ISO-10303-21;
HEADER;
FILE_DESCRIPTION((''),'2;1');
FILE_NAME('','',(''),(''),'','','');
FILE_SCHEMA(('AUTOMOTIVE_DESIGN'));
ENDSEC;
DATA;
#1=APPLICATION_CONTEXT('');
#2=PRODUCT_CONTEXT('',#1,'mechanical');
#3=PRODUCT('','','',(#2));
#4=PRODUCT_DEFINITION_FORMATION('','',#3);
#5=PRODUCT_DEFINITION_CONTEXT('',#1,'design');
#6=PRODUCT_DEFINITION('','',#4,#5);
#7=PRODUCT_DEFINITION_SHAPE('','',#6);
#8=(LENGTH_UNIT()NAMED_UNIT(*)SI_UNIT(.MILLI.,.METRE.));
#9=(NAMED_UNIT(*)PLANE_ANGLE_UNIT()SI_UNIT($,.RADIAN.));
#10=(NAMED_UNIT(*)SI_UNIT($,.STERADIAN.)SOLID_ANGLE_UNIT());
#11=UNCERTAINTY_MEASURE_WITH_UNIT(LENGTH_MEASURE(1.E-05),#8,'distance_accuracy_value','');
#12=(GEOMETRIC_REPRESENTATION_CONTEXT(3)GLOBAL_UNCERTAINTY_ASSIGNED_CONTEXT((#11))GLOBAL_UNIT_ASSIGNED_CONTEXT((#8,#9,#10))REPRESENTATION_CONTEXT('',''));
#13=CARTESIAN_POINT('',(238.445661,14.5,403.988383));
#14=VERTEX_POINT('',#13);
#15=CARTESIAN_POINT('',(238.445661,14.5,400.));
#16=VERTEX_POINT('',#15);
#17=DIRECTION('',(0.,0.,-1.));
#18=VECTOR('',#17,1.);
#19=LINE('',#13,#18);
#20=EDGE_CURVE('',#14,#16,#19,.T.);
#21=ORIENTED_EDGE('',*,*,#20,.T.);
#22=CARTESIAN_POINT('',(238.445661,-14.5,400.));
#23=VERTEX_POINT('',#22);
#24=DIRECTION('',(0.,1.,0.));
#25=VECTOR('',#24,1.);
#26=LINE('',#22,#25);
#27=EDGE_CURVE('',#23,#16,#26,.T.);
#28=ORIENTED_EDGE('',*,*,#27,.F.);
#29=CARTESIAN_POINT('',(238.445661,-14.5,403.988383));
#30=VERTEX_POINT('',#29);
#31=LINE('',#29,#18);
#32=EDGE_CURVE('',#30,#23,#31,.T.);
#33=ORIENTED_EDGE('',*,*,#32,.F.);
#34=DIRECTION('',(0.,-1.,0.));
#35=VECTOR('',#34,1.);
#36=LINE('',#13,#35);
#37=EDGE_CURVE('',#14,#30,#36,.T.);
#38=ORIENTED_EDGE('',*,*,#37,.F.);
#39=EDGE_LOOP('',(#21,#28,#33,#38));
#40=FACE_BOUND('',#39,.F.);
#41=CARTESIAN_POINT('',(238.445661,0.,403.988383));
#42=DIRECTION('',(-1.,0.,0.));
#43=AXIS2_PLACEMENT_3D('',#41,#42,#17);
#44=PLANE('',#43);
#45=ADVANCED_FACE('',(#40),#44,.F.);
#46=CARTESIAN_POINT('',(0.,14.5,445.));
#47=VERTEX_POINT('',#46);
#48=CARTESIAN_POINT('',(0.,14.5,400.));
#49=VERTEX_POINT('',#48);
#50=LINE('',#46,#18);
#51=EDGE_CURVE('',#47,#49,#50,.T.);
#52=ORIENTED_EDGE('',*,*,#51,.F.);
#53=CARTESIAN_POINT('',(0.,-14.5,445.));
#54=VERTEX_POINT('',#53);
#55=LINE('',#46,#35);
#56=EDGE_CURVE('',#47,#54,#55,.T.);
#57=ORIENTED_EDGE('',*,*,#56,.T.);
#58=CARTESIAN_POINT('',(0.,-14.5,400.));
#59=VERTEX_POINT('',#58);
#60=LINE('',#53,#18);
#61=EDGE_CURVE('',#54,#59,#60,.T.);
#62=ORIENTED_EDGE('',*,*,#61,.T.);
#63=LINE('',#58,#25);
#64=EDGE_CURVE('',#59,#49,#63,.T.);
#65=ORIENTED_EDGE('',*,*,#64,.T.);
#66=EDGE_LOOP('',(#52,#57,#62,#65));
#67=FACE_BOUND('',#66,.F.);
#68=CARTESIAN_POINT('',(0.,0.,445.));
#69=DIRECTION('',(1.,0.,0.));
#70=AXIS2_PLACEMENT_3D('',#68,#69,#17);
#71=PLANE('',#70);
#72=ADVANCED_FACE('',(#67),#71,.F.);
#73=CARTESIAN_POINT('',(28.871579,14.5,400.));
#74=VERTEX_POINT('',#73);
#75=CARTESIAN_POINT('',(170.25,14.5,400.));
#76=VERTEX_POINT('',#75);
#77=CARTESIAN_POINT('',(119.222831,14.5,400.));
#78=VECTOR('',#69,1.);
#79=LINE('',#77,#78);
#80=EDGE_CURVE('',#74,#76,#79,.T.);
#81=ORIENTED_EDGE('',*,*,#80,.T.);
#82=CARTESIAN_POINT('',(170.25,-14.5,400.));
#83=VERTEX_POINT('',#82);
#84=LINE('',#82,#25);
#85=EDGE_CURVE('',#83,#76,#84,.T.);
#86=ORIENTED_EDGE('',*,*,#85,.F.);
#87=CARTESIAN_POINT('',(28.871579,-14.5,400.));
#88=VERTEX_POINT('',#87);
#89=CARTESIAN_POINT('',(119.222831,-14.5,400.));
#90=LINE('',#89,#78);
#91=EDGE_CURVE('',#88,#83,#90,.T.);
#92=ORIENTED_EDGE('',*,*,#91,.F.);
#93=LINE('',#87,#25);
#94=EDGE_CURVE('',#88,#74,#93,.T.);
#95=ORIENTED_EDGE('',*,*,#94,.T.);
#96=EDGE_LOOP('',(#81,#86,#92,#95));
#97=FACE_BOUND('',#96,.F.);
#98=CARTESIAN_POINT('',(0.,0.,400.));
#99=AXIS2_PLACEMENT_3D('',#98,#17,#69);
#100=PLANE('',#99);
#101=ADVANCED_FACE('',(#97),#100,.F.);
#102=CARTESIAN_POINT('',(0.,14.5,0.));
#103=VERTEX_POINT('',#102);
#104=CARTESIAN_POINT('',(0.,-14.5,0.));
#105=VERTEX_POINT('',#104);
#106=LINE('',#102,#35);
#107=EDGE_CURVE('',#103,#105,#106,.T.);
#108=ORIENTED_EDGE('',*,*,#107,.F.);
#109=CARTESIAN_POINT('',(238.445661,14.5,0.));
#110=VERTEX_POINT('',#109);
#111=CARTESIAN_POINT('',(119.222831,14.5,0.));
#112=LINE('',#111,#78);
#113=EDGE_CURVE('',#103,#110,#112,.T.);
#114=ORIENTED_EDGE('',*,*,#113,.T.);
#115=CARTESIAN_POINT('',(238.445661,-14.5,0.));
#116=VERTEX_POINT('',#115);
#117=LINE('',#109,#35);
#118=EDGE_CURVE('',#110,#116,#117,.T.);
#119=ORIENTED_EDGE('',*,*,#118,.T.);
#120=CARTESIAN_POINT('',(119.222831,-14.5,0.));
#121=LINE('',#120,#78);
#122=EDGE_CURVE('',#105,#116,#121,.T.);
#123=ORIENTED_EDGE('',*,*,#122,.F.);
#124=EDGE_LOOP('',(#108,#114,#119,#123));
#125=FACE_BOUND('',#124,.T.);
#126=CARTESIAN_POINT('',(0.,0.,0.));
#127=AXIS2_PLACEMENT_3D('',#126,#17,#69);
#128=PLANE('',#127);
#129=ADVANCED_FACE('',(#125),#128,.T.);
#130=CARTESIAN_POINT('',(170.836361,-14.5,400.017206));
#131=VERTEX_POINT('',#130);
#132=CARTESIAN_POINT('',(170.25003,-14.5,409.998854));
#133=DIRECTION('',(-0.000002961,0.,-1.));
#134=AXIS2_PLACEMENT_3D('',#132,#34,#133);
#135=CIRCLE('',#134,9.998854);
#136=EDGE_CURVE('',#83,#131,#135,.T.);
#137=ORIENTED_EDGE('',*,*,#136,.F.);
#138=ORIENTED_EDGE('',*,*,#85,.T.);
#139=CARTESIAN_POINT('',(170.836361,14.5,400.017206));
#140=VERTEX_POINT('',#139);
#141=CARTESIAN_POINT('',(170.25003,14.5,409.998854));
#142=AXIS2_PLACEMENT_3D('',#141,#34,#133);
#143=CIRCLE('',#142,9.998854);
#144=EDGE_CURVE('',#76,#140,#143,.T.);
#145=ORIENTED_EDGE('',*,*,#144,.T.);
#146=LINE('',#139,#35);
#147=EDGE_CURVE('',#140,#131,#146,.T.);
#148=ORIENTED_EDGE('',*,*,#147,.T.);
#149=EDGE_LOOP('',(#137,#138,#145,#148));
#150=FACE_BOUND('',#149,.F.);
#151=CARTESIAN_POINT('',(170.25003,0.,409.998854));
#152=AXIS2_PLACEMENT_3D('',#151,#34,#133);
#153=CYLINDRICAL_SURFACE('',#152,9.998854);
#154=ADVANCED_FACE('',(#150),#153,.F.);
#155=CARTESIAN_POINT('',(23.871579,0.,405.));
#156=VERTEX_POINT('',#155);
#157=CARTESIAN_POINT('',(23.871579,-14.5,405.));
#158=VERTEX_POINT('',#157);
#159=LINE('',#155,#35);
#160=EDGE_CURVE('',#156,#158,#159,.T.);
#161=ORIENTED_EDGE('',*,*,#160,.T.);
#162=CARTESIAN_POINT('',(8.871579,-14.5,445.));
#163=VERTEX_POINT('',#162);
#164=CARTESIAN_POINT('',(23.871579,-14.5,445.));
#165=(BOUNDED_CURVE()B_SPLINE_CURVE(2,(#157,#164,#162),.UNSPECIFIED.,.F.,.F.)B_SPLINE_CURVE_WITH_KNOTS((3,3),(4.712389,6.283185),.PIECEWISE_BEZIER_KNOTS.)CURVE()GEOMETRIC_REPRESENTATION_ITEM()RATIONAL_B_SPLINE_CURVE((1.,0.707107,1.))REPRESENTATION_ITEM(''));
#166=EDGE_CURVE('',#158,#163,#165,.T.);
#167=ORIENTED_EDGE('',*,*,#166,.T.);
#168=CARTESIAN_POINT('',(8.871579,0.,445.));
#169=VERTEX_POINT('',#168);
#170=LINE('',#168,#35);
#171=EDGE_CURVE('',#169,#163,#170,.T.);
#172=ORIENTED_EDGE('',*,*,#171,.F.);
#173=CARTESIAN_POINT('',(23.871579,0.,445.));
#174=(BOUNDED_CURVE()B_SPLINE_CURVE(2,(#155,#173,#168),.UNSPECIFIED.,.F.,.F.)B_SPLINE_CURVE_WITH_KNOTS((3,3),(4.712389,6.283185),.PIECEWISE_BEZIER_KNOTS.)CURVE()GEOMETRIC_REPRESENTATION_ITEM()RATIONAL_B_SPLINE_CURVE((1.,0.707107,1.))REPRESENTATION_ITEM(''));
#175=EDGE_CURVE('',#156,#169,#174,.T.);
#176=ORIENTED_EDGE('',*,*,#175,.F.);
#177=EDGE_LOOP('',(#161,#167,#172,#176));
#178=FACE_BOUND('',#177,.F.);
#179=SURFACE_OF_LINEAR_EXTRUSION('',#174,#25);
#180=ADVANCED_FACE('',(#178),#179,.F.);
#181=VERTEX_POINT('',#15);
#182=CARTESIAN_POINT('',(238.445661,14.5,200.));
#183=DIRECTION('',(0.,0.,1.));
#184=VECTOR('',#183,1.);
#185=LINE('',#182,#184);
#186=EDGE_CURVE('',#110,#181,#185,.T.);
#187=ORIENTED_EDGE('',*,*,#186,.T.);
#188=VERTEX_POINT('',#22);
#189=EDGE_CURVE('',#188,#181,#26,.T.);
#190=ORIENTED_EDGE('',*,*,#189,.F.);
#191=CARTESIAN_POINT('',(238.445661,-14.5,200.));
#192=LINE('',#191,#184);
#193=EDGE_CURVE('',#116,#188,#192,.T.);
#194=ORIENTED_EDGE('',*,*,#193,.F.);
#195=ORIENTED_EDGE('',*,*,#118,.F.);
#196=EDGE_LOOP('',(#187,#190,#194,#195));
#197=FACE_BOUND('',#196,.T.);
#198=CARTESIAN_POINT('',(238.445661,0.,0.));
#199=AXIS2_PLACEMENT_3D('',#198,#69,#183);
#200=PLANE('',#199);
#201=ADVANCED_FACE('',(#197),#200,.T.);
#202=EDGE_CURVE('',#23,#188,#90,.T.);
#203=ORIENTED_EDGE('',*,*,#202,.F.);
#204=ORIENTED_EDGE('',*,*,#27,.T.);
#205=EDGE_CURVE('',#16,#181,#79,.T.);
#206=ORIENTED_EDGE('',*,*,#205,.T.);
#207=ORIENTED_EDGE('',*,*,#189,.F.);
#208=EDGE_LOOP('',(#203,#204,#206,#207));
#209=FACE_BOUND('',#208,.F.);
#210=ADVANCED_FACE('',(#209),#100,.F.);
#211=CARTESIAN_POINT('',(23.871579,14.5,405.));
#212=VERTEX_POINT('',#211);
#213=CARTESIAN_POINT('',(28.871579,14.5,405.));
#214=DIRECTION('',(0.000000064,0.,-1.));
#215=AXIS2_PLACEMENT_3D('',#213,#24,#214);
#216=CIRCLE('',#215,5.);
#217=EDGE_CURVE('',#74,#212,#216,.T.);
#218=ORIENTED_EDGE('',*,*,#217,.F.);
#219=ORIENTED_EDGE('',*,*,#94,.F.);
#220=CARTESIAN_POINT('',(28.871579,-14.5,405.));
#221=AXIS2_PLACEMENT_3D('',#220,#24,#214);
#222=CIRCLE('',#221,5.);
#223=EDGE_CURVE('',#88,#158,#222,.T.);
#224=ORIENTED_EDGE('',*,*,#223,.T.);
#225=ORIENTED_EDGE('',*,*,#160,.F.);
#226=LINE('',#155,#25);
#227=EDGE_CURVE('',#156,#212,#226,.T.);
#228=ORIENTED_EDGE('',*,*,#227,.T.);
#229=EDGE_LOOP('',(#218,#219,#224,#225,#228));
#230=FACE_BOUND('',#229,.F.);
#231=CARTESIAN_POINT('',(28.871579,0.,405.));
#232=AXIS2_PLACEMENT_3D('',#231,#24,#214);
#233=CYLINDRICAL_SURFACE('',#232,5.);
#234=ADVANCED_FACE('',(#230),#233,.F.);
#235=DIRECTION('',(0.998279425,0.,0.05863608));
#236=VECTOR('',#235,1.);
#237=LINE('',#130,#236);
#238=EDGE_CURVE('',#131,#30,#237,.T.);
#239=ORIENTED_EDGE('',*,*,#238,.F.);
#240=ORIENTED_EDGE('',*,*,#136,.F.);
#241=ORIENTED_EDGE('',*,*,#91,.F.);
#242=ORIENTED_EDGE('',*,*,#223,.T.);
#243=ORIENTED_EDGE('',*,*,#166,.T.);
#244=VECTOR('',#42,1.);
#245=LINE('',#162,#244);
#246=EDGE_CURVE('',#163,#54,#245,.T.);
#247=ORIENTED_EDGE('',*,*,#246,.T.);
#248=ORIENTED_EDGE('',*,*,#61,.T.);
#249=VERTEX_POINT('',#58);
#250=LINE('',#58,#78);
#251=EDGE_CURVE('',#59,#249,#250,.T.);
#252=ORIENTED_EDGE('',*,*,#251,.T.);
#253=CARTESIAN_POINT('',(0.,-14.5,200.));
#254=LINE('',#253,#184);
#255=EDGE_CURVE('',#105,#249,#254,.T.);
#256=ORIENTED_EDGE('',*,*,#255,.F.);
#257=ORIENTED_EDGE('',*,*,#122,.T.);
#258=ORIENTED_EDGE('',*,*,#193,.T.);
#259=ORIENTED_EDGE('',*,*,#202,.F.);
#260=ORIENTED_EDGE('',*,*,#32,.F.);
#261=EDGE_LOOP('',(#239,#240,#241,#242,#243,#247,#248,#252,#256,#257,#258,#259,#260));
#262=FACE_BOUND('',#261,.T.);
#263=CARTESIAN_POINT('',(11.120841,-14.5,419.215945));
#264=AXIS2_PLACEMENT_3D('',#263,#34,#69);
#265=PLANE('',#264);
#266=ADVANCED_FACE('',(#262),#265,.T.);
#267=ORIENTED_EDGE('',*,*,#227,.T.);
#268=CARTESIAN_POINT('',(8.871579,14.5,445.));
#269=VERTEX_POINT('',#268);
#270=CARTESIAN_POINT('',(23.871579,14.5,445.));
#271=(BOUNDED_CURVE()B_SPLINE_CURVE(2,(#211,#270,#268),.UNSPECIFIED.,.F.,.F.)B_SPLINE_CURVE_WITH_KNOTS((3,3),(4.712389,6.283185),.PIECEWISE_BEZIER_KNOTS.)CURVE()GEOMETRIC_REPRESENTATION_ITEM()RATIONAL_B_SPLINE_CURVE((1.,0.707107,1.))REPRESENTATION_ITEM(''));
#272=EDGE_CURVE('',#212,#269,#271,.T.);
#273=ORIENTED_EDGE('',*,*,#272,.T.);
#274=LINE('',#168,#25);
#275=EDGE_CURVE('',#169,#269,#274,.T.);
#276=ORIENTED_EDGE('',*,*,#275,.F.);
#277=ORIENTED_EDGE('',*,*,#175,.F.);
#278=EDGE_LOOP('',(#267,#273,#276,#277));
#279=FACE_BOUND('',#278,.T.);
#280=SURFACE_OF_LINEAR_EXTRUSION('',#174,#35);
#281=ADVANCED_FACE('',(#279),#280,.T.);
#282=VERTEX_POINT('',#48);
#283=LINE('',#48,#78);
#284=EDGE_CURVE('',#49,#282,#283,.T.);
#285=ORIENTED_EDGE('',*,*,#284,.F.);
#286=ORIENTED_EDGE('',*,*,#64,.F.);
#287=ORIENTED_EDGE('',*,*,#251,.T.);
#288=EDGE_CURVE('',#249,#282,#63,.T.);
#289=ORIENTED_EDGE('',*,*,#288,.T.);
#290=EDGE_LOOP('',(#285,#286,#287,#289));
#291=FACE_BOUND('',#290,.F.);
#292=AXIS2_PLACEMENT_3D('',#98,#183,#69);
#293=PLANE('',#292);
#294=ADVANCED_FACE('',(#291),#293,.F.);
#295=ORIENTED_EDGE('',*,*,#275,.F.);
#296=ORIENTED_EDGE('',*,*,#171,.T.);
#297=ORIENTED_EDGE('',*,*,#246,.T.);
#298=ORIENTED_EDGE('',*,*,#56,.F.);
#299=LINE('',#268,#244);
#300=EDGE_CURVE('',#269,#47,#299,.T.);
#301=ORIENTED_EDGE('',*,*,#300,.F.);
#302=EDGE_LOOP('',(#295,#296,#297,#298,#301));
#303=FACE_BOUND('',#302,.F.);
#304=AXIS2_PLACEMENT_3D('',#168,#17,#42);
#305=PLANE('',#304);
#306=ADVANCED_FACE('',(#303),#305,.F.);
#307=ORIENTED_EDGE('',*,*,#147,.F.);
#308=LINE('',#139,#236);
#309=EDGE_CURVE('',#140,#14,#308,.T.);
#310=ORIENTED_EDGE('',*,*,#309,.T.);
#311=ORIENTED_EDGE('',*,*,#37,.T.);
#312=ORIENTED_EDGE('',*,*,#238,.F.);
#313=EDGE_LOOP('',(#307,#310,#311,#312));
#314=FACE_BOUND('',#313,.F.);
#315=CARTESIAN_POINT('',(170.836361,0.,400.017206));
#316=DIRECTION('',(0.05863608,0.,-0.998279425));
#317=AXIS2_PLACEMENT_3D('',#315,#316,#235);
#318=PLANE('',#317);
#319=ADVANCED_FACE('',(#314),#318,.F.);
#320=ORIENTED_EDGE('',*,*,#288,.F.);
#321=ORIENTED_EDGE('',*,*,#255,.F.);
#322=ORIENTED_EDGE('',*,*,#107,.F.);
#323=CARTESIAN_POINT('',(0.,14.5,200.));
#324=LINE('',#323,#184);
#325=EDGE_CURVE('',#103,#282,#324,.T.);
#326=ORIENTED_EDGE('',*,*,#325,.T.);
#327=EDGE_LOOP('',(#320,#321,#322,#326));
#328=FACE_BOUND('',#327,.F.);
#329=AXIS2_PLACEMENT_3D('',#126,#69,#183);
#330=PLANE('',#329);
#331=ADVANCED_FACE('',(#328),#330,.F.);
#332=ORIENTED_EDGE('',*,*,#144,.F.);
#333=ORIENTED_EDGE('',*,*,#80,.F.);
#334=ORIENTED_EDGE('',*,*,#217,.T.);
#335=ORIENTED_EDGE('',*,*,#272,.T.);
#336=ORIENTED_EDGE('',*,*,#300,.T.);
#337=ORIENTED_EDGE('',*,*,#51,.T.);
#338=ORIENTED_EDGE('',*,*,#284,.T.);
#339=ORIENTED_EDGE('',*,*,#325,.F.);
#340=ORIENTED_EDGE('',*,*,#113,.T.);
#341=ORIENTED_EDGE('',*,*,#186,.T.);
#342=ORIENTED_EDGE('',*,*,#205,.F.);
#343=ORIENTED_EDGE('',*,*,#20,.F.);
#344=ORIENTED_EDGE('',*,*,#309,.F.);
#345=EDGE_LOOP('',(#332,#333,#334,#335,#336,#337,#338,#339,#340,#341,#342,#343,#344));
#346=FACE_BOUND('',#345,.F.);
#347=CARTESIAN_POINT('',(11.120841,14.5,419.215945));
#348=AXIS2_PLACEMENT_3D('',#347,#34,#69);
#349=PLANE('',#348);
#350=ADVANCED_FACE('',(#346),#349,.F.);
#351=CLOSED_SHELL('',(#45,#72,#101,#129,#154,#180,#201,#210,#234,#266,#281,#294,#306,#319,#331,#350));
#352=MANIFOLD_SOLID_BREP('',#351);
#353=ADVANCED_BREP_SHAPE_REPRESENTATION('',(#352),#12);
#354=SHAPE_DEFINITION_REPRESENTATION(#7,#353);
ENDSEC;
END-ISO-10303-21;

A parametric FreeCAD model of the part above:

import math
import FreeCAD as App
import Part
import Sketcher
from FreeCAD import Vector

doc = App.newDocument("Part")
body = doc.addObject("PartDesign::Body", "Body")
body.AllowCompound = True

# Sketch on XZ plane
sketch1 = body.newObject("Sketcher::SketchObject", "Sketch")
sketch1.AttachmentSupport = (doc.getObject("XZ_Plane"), [""])
sketch1.MapMode = "FlatFace"
sketch1.addGeometry(Part.BSplineCurve([Vector(23.871579, 405, 0), Vector(23.871579, 445, 0), Vector(8.871579, 445, 0)], [3, 3], [4.712389, 6.283185], False, 2, [1, 0.707107, 1], False), False)
sketch1.addGeometry(Part.LineSegment(Vector(8.871579, 445, 0), Vector(0, 445, 0)), False)
sketch1.addGeometry(Part.LineSegment(Vector(0, 445, 0), Vector(0, 400, 0)), False)
sketch1.addGeometry(Part.LineSegment(Vector(0, 400, 0), Vector(28.871579, 400, 0)), False)
sketch1.addGeometry(Part.ArcOfCircle(Part.Circle(Vector(28.871579, 405, 0), Vector(0, 0, 1), 5), math.radians(179.999996), math.radians(270.000004)), False)
sketch1.addGeometry(Part.LineSegment(Vector(238.445661, 400, 0), Vector(238.445661, 403.988383, 0)), False)
sketch1.addGeometry(Part.LineSegment(Vector(238.445661, 403.988383, 0), Vector(170.836361, 400.017206, 0)), False)
sketch1.addGeometry(Part.ArcOfCircle(Part.Circle(Vector(170.25003, 409.998854, 0), Vector(0, 0, 1), 9.998854), math.radians(-90.00017), math.radians(-86.638255)), False)
sketch1.addGeometry(Part.LineSegment(Vector(170.25, 400, 0), Vector(238.445661, 400, 0)), False)
sketch1.addConstraint(Sketcher.Constraint("Block", 0))
sketch1.addConstraint(Sketcher.Constraint("Coincident", 0, 2, 1, 1))
sketch1.addConstraint(Sketcher.Constraint("Coincident", 1, 2, 2, 1))
sketch1.addConstraint(Sketcher.Constraint("Coincident", 2, 2, 3, 1))
sketch1.addConstraint(Sketcher.Constraint("Tangent", 3, 2, 4, 2))
sketch1.addConstraint(Sketcher.Constraint("Coincident", 4, 1, 0, 1))
sketch1.addConstraint(Sketcher.Constraint("Coincident", 5, 2, 6, 1))
sketch1.addConstraint(Sketcher.Constraint("Coincident", 6, 2, 7, 2))
sketch1.addConstraint(Sketcher.Constraint("Coincident", 7, 1, 8, 1))
sketch1.addConstraint(Sketcher.Constraint("Coincident", 8, 2, 5, 1))
sketch1.addConstraint(Sketcher.Constraint("Horizontal", 1))
sketch1.addConstraint(Sketcher.Constraint("Vertical", 2))
sketch1.addConstraint(Sketcher.Constraint("Horizontal", 3))
sketch1.addConstraint(Sketcher.Constraint("Vertical", 5))
sketch1.addConstraint(Sketcher.Constraint("Horizontal", 8))
sketch1.addConstraint(Sketcher.Constraint("PointOnObject", 1, 2, -2))
sketch1.addConstraint(Sketcher.Constraint("Horizontal", 3, 2, 7, 1))
sketch1.addConstraint(Sketcher.Constraint("Radius", 4, 5.0))
sketch1.addConstraint(Sketcher.Constraint("DistanceY", 2, 2, 2, 1, 45.0))
sketch1.addConstraint(Sketcher.Constraint("DistanceX", -1, 1, 7, 1, 170.25))
sketch1.addConstraint(Sketcher.Constraint("Radius", 7, 9.998854))
sketch1.addConstraint(Sketcher.Constraint("DistanceX", 8, 1, 8, 2, 68.195661))
sketch1.addConstraint(Sketcher.Constraint("DistanceX", 6, 2, 5, 2, 67.6093))
sketch1.addConstraint(Sketcher.Constraint("DistanceY", 5, 1, 5, 2, 3.988383))
sketch1.addConstraint(Sketcher.Constraint("DistanceX", -1, 1, 7, 3, 170.25003))
pad1 = body.newObject("PartDesign::Pad", "Pad")
pad1.Profile = sketch1
pad1.Length = 29
pad1.Midplane = True
body2 = doc.addObject("PartDesign::Body", "Body001")

# Sketch on XZ plane
sketch2 = body2.newObject("Sketcher::SketchObject", "Sketch001")
sketch2.AttachmentSupport = (doc.getObject("XZ_Plane001"), [""])
sketch2.MapMode = "FlatFace"
sketch2.addGeometry(Part.LineSegment(Vector(0, 400, 0), Vector(0, 0, 0)), False)
sketch2.addGeometry(Part.LineSegment(Vector(0, 0, 0), Vector(238.445661, 0, 0)), False)
sketch2.addGeometry(Part.LineSegment(Vector(238.445661, 0, 0), Vector(238.445661, 400, 0)), False)
sketch2.addGeometry(Part.LineSegment(Vector(238.445661, 400, 0), Vector(0, 400, 0)), False)
sketch2.addConstraint(Sketcher.Constraint("Coincident", 0, 2, 1, 1))
sketch2.addConstraint(Sketcher.Constraint("Coincident", 1, 2, 2, 1))
sketch2.addConstraint(Sketcher.Constraint("Coincident", 2, 2, 3, 1))
sketch2.addConstraint(Sketcher.Constraint("Coincident", 3, 2, 0, 1))
sketch2.addConstraint(Sketcher.Constraint("Vertical", 0))
sketch2.addConstraint(Sketcher.Constraint("Horizontal", 1))
sketch2.addConstraint(Sketcher.Constraint("Vertical", 2))
sketch2.addConstraint(Sketcher.Constraint("Horizontal", 3))
sketch2.addConstraint(Sketcher.Constraint("Coincident", 0, 2, -1, 1))
sketch2.addConstraint(Sketcher.Constraint("DistanceY", 0, 2, 0, 1, 400.0))
sketch2.addConstraint(Sketcher.Constraint("DistanceX", 1, 1, 1, 2, 238.445661))
pad2 = body2.newObject("PartDesign::Pad", "Pad001")
pad2.Profile = sketch2
pad2.Length = 29
pad2.Midplane = True
doc.recompute()

boolean = body2.newObject("PartDesign::Boolean", "Boolean")
boolean.Type = "Fuse"
boolean.addObjects([body])

doc.recompute()
